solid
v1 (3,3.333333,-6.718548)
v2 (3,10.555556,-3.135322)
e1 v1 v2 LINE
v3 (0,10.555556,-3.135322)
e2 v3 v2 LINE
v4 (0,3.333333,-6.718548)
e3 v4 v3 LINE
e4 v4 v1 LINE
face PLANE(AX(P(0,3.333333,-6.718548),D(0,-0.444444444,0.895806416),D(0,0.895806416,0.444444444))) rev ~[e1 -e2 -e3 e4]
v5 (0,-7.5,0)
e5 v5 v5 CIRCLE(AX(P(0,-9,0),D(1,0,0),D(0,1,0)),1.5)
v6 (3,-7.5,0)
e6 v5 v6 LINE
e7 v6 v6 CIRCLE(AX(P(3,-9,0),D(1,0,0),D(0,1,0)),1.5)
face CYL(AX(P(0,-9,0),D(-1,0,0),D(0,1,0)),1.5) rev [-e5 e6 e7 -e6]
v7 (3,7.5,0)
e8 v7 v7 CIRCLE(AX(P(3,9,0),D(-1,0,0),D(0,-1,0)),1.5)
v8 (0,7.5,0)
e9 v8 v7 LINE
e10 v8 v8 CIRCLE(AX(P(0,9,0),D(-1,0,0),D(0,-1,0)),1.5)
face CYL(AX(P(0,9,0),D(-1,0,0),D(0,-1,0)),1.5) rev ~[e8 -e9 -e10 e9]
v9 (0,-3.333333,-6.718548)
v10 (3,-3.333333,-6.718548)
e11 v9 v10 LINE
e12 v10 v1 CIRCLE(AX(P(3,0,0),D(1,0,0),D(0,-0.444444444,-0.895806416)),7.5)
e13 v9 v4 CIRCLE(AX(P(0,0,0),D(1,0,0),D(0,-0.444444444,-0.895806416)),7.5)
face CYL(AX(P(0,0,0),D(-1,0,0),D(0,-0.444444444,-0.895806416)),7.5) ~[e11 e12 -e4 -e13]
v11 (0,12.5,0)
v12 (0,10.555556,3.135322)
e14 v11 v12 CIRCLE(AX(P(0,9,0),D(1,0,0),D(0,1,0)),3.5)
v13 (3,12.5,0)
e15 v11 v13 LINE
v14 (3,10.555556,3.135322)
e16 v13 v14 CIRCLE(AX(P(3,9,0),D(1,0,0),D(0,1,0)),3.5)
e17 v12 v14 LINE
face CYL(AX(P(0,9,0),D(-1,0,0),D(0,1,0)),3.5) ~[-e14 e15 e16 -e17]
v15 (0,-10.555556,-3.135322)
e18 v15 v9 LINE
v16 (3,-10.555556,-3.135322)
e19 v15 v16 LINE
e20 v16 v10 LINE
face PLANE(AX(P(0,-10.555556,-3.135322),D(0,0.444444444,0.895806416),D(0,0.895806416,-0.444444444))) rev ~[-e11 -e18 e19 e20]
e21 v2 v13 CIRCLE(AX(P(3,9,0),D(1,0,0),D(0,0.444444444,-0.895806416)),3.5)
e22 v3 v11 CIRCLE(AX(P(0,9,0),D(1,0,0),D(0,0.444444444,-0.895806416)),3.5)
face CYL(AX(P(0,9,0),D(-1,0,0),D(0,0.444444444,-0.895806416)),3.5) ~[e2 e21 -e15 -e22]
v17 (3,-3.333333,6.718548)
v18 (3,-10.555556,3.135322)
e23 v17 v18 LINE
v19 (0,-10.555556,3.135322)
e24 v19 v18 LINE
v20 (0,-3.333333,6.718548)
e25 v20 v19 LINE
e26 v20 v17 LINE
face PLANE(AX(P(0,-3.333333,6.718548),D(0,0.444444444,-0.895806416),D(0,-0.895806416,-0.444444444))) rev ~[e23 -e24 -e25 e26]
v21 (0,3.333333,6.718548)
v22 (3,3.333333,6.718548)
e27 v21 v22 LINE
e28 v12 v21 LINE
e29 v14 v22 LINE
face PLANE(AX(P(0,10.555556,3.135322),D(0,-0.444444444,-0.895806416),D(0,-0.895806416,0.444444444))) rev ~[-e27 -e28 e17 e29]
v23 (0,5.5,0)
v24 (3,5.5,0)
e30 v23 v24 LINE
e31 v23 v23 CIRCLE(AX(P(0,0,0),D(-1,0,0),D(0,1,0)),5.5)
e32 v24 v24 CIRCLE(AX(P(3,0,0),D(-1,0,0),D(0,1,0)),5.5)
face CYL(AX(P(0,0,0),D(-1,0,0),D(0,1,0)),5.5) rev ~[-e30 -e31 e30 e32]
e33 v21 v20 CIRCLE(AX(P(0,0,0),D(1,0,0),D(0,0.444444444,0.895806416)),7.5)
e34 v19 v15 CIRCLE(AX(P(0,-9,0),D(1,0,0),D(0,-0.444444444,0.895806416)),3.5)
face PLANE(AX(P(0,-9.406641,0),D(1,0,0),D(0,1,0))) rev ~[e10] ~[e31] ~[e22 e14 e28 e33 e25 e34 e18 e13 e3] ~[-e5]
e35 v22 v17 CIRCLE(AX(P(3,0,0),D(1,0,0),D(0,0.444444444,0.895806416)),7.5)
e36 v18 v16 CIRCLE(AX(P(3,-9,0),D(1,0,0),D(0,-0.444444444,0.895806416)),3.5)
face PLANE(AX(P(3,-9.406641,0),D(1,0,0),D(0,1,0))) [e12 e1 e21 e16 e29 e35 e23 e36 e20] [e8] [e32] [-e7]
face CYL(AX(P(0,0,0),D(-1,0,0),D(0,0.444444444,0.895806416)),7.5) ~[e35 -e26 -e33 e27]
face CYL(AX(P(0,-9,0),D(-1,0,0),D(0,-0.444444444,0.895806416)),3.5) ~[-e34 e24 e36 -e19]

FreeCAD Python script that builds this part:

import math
import FreeCAD as App
import Part
import Sketcher
Q = App.Units.Quantity

doc = App.newDocument("Part")
body = doc.addObject("PartDesign::Body", "Body")

sketch1 = body.newObject("Sketcher::SketchObject", "Sketch")
sketch1.AttachmentSupport = (doc.getObject("YZ_Plane"), [""])
sketch1.MapMode = "FlatFace"
sketch1.addGeometry([
    Part.ArcOfCircle(Part.Circle(App.Vector(9, 0, 0), App.Vector(0, 0, 1), 3.5), math.radians(-64), math.radians(0)),
    Part.ArcOfCircle(Part.Circle(App.Vector(9, 0, 0), App.Vector(0, 0, 1), 3.5), math.radians(0), math.radians(64)),
    Part.LineSegment(App.Vector(10.6, 3.1, 0), App.Vector(3.3, 6.7, 0)),
    Part.ArcOfCircle(Part.Circle(App.Vector(0, 0, 0), App.Vector(0, 0, 1), 7.5), math.radians(64), math.radians(116)),
    Part.LineSegment(App.Vector(-3.3, 6.7, 0), App.Vector(-10.6, 3.1, 0)),
    Part.ArcOfCircle(Part.Circle(App.Vector(-9, 0, 0), App.Vector(0, 0, 1), 3.5), math.radians(116), math.radians(244)),
    Part.LineSegment(App.Vector(-10.6, -3.1, 0), App.Vector(-3.3, -6.7, 0)),
    Part.ArcOfCircle(Part.Circle(App.Vector(0, 0, 0), App.Vector(0, 0, 1), 7.5), math.radians(-116), math.radians(-64)),
    Part.LineSegment(App.Vector(3.3, -6.7, 0), App.Vector(10.6, -3.1, 0)),
    Part.Circle(App.Vector(-9, 0, 0), App.Vector(0, 0, 1), 1.5),
    Part.Circle(App.Vector(0, 0, 0), App.Vector(0, 0, 1), 5.5),
    Part.Circle(App.Vector(9, 0, 0), App.Vector(0, 0, 1), 1.5),
], False)
sketch1.addConstraint([
    Sketcher.Constraint("Tangent", 0, 2, 1, 1),
    Sketcher.Constraint("Tangent", 1, 2, 2, 1),
    Sketcher.Constraint("Tangent", 2, 2, 3, 1),
    Sketcher.Constraint("Tangent", 3, 2, 4, 1),
    Sketcher.Constraint("Tangent", 4, 2, 5, 1),
    Sketcher.Constraint("Tangent", 5, 2, 6, 1),
    Sketcher.Constraint("Tangent", 6, 2, 7, 1),
    Sketcher.Constraint("Tangent", 7, 2, 8, 1),
    Sketcher.Constraint("Tangent", 8, 2, 0, 1),
    Sketcher.Constraint("Coincident", 3, 3, -1, 1),
    Sketcher.Constraint("Coincident", 7, 3, -1, 1),
    Sketcher.Constraint("Coincident", 10, 3, -1, 1),
    Sketcher.Constraint("Coincident", 9, 3, 5, 3),
    Sketcher.Constraint("Coincident", 11, 3, 0, 3),
    Sketcher.Constraint("Equal", 0, 1),
    Sketcher.Constraint("Equal", 1, 5),
    Sketcher.Constraint("Equal", 3, 7),
    Sketcher.Constraint("Equal", 9, 11),
    Sketcher.Constraint("Symmetric", 0, 3, 5, 3, -1, 1),
    Sketcher.Constraint("PointOnObject", 0, 3, -1),
    Sketcher.Constraint("PointOnObject", 0, 2, -1),
    Sketcher.Constraint("Diameter", 9, Q("3 mm")),
    Sketcher.Constraint("Diameter", 10, Q("11 mm")),
    Sketcher.Constraint("Radius", 0, Q("3.5 mm")),
    Sketcher.Constraint("Radius", 3, Q("7.5 mm")),
    Sketcher.Constraint("DistanceX", -1, 1, 0, 3, Q("9 mm")),
])
pad1 = body.newObject("PartDesign::Pad", "Pad")
pad1.Profile = sketch1
pad1.Length = 3

doc.recompute()
